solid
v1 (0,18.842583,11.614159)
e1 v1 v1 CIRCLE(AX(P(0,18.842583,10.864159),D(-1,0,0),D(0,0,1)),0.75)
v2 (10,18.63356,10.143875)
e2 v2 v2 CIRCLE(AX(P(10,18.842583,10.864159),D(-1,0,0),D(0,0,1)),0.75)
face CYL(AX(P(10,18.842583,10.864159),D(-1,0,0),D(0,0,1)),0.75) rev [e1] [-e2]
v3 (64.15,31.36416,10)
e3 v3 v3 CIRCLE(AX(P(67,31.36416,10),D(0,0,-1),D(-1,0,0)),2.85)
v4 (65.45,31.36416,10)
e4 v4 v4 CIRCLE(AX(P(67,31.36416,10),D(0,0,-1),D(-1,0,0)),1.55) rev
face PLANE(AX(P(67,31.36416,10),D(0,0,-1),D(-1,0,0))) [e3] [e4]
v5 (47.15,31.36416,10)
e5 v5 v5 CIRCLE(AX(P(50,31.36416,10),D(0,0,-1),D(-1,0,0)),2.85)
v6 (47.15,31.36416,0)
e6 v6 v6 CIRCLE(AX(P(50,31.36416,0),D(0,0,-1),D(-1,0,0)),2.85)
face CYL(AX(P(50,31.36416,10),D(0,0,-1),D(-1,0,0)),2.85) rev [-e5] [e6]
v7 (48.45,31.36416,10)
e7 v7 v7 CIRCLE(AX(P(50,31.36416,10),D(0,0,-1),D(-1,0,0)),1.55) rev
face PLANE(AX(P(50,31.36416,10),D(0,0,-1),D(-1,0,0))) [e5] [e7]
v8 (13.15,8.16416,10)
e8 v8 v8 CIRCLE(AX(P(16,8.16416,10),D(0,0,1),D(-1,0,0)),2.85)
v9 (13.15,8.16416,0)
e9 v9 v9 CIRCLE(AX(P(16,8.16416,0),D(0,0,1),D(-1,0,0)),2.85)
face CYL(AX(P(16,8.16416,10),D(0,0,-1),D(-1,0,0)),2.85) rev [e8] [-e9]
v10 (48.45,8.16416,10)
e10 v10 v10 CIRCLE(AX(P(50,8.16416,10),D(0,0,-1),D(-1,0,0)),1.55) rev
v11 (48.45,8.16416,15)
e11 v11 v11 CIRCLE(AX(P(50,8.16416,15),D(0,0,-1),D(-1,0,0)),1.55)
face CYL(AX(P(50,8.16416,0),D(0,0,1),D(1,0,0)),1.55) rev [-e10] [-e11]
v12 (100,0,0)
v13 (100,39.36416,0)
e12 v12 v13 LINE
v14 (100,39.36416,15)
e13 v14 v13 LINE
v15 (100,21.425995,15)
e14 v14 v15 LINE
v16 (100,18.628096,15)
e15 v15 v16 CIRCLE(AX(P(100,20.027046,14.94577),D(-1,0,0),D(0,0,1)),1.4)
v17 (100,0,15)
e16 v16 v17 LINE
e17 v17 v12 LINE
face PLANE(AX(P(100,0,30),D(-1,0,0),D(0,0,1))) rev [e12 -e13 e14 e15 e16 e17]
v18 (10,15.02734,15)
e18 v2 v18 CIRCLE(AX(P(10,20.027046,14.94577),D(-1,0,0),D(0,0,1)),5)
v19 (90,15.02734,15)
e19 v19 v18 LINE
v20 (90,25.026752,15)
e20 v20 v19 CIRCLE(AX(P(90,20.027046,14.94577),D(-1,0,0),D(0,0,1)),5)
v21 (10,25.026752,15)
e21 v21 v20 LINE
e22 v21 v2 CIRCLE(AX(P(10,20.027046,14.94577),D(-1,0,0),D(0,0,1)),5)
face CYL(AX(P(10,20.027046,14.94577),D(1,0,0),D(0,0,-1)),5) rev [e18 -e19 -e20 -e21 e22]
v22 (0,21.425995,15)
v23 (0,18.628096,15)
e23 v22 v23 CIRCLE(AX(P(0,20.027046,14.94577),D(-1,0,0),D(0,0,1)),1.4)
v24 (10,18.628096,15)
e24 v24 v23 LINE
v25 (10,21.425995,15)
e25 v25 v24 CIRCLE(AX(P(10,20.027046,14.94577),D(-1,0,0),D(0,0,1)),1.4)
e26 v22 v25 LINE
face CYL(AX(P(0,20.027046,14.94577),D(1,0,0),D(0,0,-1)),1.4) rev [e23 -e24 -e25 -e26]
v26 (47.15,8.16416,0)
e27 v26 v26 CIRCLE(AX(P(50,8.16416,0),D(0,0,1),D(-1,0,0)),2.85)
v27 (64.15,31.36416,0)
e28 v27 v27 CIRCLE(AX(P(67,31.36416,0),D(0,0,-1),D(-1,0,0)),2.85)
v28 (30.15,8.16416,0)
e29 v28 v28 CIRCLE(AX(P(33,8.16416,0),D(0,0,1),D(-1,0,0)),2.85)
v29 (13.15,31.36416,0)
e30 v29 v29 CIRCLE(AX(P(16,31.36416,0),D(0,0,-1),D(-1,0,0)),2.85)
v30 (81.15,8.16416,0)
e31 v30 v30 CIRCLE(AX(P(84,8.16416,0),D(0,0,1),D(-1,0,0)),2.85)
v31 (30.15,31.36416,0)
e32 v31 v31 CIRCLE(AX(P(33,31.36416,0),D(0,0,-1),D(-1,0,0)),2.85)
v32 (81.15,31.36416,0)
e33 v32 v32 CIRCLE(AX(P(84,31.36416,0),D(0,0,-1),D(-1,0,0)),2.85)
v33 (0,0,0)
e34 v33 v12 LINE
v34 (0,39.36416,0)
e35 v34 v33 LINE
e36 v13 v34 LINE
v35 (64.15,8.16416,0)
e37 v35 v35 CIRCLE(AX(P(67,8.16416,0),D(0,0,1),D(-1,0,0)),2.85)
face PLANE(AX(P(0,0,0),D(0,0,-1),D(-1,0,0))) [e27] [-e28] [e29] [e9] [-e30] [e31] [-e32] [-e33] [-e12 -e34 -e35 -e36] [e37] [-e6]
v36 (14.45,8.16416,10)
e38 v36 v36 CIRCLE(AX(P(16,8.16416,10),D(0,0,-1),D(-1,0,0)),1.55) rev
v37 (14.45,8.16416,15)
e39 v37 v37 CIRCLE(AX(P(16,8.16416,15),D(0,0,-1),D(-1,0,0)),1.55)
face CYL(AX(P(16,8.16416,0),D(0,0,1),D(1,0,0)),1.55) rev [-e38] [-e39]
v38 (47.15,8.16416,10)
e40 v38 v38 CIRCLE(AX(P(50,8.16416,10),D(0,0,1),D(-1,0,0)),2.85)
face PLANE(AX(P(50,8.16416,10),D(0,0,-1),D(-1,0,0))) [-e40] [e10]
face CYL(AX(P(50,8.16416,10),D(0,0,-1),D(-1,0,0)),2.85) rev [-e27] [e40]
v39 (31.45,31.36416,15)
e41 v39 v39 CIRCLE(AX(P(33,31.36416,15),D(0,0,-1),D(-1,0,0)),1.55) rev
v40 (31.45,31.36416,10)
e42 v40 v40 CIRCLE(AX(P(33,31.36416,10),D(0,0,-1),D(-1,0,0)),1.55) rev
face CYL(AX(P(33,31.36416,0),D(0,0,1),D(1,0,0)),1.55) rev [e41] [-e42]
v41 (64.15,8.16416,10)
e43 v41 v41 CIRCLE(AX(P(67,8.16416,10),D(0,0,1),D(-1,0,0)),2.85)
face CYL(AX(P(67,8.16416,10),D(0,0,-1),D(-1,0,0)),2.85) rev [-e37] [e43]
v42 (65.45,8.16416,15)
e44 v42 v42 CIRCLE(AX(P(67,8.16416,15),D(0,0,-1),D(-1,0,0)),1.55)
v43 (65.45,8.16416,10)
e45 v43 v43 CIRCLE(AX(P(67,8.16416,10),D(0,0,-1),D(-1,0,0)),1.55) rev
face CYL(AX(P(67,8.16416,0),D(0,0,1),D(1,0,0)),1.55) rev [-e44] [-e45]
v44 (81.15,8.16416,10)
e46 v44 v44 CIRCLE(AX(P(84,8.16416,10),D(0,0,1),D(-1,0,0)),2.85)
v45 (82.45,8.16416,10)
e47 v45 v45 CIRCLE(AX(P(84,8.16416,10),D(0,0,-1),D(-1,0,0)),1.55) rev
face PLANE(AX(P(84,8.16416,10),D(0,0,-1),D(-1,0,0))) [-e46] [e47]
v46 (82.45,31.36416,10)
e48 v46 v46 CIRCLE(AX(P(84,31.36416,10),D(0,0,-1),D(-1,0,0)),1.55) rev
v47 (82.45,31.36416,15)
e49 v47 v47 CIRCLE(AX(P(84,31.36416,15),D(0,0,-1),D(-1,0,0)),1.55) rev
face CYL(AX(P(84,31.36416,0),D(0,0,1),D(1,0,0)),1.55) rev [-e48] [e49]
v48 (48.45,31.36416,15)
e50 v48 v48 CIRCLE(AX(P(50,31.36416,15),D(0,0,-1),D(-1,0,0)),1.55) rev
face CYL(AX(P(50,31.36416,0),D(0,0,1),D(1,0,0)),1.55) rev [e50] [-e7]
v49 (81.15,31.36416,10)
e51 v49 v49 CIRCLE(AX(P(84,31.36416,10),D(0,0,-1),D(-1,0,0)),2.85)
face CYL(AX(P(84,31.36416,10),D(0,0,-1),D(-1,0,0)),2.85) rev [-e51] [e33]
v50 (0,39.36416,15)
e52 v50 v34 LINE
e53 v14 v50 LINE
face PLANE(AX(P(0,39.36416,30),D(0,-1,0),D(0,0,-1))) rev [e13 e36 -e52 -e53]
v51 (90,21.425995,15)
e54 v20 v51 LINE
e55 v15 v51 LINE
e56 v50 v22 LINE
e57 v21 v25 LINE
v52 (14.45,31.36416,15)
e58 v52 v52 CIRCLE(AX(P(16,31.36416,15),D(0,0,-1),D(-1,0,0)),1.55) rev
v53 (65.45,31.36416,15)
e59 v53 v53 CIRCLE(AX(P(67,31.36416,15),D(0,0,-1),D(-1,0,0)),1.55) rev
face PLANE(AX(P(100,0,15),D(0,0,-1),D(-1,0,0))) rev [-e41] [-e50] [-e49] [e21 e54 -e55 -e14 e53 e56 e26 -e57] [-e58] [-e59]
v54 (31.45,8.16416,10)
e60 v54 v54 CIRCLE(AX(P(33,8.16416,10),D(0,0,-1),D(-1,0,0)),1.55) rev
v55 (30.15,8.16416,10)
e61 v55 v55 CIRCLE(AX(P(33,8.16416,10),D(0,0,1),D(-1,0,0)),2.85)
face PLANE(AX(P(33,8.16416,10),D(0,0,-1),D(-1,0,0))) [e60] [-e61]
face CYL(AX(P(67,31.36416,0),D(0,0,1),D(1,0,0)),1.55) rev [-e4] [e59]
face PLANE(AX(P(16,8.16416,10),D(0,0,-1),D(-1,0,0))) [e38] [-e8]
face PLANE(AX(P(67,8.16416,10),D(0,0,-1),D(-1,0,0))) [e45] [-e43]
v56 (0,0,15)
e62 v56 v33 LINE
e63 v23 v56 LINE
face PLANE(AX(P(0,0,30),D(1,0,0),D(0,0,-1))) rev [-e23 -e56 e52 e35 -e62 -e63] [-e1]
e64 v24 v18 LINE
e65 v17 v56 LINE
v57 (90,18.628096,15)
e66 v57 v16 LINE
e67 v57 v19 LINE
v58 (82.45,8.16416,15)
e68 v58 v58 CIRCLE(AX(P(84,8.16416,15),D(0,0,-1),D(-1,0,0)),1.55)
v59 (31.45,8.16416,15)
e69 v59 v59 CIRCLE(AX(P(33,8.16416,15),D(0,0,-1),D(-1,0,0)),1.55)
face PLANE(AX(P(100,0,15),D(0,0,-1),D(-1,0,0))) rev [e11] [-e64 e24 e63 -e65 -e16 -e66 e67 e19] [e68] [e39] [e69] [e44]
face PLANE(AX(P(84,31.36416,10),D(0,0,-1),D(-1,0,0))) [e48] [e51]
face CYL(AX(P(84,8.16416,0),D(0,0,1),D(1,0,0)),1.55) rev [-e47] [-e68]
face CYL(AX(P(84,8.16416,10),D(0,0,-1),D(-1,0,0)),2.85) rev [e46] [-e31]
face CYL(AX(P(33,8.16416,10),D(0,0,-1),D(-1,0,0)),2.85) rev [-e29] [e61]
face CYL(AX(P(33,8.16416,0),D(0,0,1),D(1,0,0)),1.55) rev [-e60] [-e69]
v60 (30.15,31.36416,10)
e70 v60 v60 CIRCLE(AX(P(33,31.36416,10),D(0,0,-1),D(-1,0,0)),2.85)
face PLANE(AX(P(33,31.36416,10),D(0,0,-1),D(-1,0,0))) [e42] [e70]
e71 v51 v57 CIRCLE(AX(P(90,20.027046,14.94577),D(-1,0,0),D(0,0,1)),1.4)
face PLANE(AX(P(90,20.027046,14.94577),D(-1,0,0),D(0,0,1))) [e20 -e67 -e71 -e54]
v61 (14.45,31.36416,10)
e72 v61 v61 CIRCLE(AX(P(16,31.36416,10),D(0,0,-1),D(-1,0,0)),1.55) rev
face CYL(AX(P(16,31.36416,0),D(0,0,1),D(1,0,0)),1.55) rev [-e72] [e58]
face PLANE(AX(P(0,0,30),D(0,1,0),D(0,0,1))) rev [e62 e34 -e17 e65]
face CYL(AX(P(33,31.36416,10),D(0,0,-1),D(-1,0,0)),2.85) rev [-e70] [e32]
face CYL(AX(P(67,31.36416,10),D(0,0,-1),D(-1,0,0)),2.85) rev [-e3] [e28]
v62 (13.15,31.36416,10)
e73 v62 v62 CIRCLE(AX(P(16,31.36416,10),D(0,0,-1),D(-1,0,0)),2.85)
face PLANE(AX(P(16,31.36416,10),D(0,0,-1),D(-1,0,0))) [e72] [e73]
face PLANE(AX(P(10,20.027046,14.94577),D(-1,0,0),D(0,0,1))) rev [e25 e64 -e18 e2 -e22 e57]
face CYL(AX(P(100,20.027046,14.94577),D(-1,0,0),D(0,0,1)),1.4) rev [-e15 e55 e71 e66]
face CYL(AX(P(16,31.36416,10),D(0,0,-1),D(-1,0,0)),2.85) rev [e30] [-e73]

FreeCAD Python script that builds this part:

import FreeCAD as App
import Part
import Sketcher
Q = App.Units.Quantity


def edges_at(feature, points):
    """Names of the edges that pass closest to the given points."""
    edges = feature.Shape.Edges
    near = lambda p: min(range(len(edges)), key=lambda i: edges[i].distToShape(Part.Vertex(*p))[0])
    return sorted({f"Edge{near(p) + 1}" for p in points})

doc = App.newDocument("Part")
params = doc.addObject("Spreadsheet::Sheet", "Params")
for row, (alias, value) in enumerate([
    ("sketch1_width", "100 mm"),
    ("pad1_length", "30 mm"),
    ("sketch2_diameter", "10 mm"),
    ("pocket1_length", "40 mm"),
    ("pocket1_length2", "40 mm"),
    ("sketch3_diameter", "2.8 mm"),
    ("sketch4_diameter", "3.1 mm"),
    ("sketch6_diameter", "4.2 mm"),
    ("pocket5_length", "6 mm"),
    ("sketch7_diameter", "1.5 mm"),
    ("pocket6_length", "10 mm"),
    ("fillet_radius", "1 mm"),
    ("sketch8_diameter", "5.7 mm"),
    ("pocket7_length", "10 mm"),
    ("sketch9_width", "5.7 mm"),
    ("pocket8_length", "2.7 mm"),
    ("linearpattern_pitch", "17 mm"),
    ("sketch10_diameter", "5.7 mm"),
    ("pocket9_length", "10 mm"),
    ("sketch11_diameter", "5.7 mm"),
    ("pocket10_length", "10 mm"),
    ("sketch12_diameter", "5.7 mm"),
    ("pocket11_length", "10 mm"),
    ("sketch13_diameter", "5.7 mm"),
    ("pocket12_length", "10 mm"),
    ("sketch14_width", "5.7 mm"),
    ("pocket13_length", "2.7 mm"),
    ("sketch15_width", "5.7 mm"),
    ("pocket14_length", "2.7 mm"),
    ("sketch16_width", "5.7 mm"),
    ("pocket15_length", "2.7 mm"),
    ("sketch17_width", "5.7 mm"),
    ("pocket16_length", "2.7 mm"),
    ("sketch18_height", "15 mm"),
], start=1):
    params.set(f"A{row}", alias)
    params.set(f"B{row}", "=" + value)
    params.setAlias(f"B{row}", alias)

body = doc.addObject("PartDesign::Body", "Body")

# Sketch on XY plane
sketch1 = body.newObject("Sketcher::SketchObject", "Sketch")
sketch1.AttachmentSupport = (doc.getObject("XY_Plane"), [""])
sketch1.MapMode = "FlatFace"
sketch1.addGeometry(Part.LineSegment(App.Vector(0, 39, 0), App.Vector(0, 0, 0)), False)
sketch1.addGeometry(Part.LineSegment(App.Vector(0, 0, 0), App.Vector(100, 0, 0)), False)
sketch1.addGeometry(Part.LineSegment(App.Vector(100, 0, 0), App.Vector(100, 39, 0)), False)
sketch1.addGeometry(Part.LineSegment(App.Vector(100, 39, 0), App.Vector(0, 39, 0)), False)
sketch1.addConstraint(Sketcher.Constraint("Coincident", 0, 2, 1, 1))
sketch1.addConstraint(Sketcher.Constraint("Coincident", 1, 2, 2, 1))
sketch1.addConstraint(Sketcher.Constraint("Coincident", 2, 2, 3, 1))
sketch1.addConstraint(Sketcher.Constraint("Coincident", 3, 2, 0, 1))
sketch1.addConstraint(Sketcher.Constraint("Vertical", 0))
sketch1.addConstraint(Sketcher.Constraint("Horizontal", 1))
sketch1.addConstraint(Sketcher.Constraint("Vertical", 2))
sketch1.addConstraint(Sketcher.Constraint("Horizontal", 3))
sketch1.addConstraint(Sketcher.Constraint("Coincident", 0, 2, -1, 1))
sketch1.addConstraint(Sketcher.Constraint("DistanceX", 1, 1, 1, 2, Q("100 mm")))
sketch1.addConstraint(Sketcher.Constraint("DistanceY", 0, 2, 0, 1, Q("39.36416 mm")))
sketch1.setExpression("Constraints[9]", "Params.sketch1_width")
pad1 = body.newObject("PartDesign::Pad", "Pad")
pad1.Profile = sketch1
pad1.setExpression("Length", "Params.pad1_length")

# Sketch on YZ plane
sketch2 = body.newObject("Sketcher::SketchObject", "Sketch001")
sketch2.AttachmentSupport = (doc.getObject("YZ_Plane"), [""])
sketch2.MapMode = "FlatFace"
sketch2.AttachmentOffset = App.Placement(App.Vector(0, 0, 50), App.Rotation())
sketch2.addGeometry(Part.Circle(App.Vector(20, 15, 0), App.Vector(0, 0, 1), 5), False)
sketch2.addConstraint(Sketcher.Constraint("Diameter", 0, Q("10 mm")))
sketch2.addConstraint(Sketcher.Constraint("DistanceY", -1, 1, 0, 3, Q("14.94577 mm")))
sketch2.addConstraint(Sketcher.Constraint("DistanceX", -1, 1, 0, 3, Q("20.027046 mm")))
sketch2.setExpression("Constraints[0]", "Params.sketch2_diameter")
pocket1 = body.newObject("PartDesign::Pocket", "Pocket")
pocket1.Profile = sketch2
pocket1.Type = "TwoLengths"
pocket1.setExpression("Length", "Params.pocket1_length")
pocket1.setExpression("Length2", "Params.pocket1_length2")

# Sketch on YZ plane
sketch3 = body.newObject("Sketcher::SketchObject", "Sketch002")
sketch3.AttachmentSupport = (doc.getObject("YZ_Plane"), [""])
sketch3.MapMode = "FlatFace"
sketch3.AttachmentOffset = App.Placement(App.Vector(0, 0, 90), App.Rotation())
sketch3.addGeometry(Part.Circle(App.Vector(20, 14.9, 0), App.Vector(0, 0, 1), 1.4), False)
sketch3.addConstraint(Sketcher.Constraint("Diameter", 0, Q("2.8 mm")))
sketch3.addConstraint(Sketcher.Constraint("DistanceY", -1, 1, 0, 3, Q("14.94577 mm")))
sketch3.addConstraint(Sketcher.Constraint("DistanceX", -1, 1, 0, 3, Q("20.027046 mm")))
sketch3.setExpression("Constraints[0]", "Params.sketch3_diameter")
pocket2 = body.newObject("PartDesign::Pocket", "Pocket001")
pocket2.Profile = sketch3
pocket2.Type = "ThroughAll"
pocket2.Reversed = True
doc.recompute()

datumplane = body.newObject("PartDesign::Plane", "DatumPlane")
datumplane.AttachmentSupport = (doc.getObject("YZ_Plane"), [""])
datumplane.MapMode = "FlatFace"
datumplane.AttachmentOffset = App.Placement(App.Vector(0, 0, 50), App.Rotation())
mirrored = body.newObject("PartDesign::Mirrored", "Mirrored")
mirrored.Originals = [pocket2]
mirrored.MirrorPlane = (datumplane, [""])
body.Tip = mirrored

# Sketch on XY plane
sketch4 = body.newObject("Sketcher::SketchObject", "Sketch003")
sketch4.AttachmentSupport = (doc.getObject("XY_Plane"), [""])
sketch4.MapMode = "FlatFace"
sketch4.AttachmentOffset = App.Placement(App.Vector(0, 0, 30), App.Rotation())
sketch4.addGeometry(Part.Circle(App.Vector(16, 31.4, 0), App.Vector(0, 0, 1), 1.6), False)
sketch4.addGeometry(Part.Circle(App.Vector(33, 31.4, 0), App.Vector(0, 0, 1), 1.6), False)
sketch4.addGeometry(Part.Circle(App.Vector(50, 31.4, 0), App.Vector(0, 0, 1), 1.6), False)
sketch4.addGeometry(Part.Circle(App.Vector(67, 31.4, 0), App.Vector(0, 0, 1), 1.6), False)
sketch4.addGeometry(Part.Circle(App.Vector(84, 31.4, 0), App.Vector(0, 0, 1), 1.6), False)
sketch4.addConstraint(Sketcher.Constraint("Equal", 0, 1))
sketch4.addConstraint(Sketcher.Constraint("Equal", 1, 2))
sketch4.addConstraint(Sketcher.Constraint("Equal", 2, 3))
sketch4.addConstraint(Sketcher.Constraint("Equal", 3, 4))
sketch4.addConstraint(Sketcher.Constraint("Horizontal", 0, 3, 1, 3))
sketch4.addConstraint(Sketcher.Constraint("Horizontal", 1, 3, 2, 3))
sketch4.addConstraint(Sketcher.Constraint("Horizontal", 2, 3, 3, 3))
sketch4.addConstraint(Sketcher.Constraint("Horizontal", 3, 3, 4, 3))
sketch4.addConstraint(Sketcher.Constraint("Diameter", 0, Q("3.1 mm")))
sketch4.addConstraint(Sketcher.Constraint("DistanceX", -1, 1, 0, 3, Q("16 mm")))
sketch4.addConstraint(Sketcher.Constraint("DistanceX", -1, 1, 1, 3, Q("33 mm")))
sketch4.addConstraint(Sketcher.Constraint("DistanceX", -1, 1, 2, 3, Q("50 mm")))
sketch4.addConstraint(Sketcher.Constraint("DistanceX", -1, 1, 3, 3, Q("67 mm")))
sketch4.addConstraint(Sketcher.Constraint("DistanceX", -1, 1, 4, 3, Q("84 mm")))
sketch4.addConstraint(Sketcher.Constraint("DistanceY", -1, 1, 0, 3, Q("31.36416 mm")))
sketch4.setExpression("Constraints[8]", "Params.sketch4_diameter")
pocket3 = body.newObject("PartDesign::Pocket", "Pocket002")
pocket3.Profile = sketch4
pocket3.Type = "ThroughAll"

# Sketch on YZ plane
sketch5 = body.newObject("Sketcher::SketchObject", "Sketch004")
sketch5.AttachmentSupport = (doc.getObject("YZ_Plane"), [""])
sketch5.MapMode = "FlatFace"
sketch5.AttachmentOffset = App.Placement(App.Vector(0, 0, 100), App.Rotation())
sketch5.addGeometry(Part.Circle(App.Vector(18.6, 18.9, 0), App.Vector(0, 0, 1), 0.7), False)
sketch5.addConstraint(Sketcher.Constraint("Diameter", 0, Q("1.473731 mm")))
sketch5.addConstraint(Sketcher.Constraint("DistanceX", -1, 1, 0, 3, Q("18.63356 mm")))
sketch5.addConstraint(Sketcher.Constraint("DistanceY", -1, 1, 0, 3, Q("18.92459 mm")))
pocket4 = body.newObject("PartDesign::Pocket", "Pocket003")
pocket4.Profile = sketch5
pocket4.Type = "ThroughAll"

# Sketch on YZ plane
sketch6 = body.newObject("Sketcher::SketchObject", "Sketch005")
sketch6.AttachmentSupport = (doc.getObject("YZ_Plane"), [""])
sketch6.MapMode = "FlatFace"
sketch6.AttachmentOffset = App.Placement(App.Vector(0, 0, 100), App.Rotation())
sketch6.addGeometry(Part.Circle(App.Vector(18.6, 18.9, 0), App.Vector(0, 0, 1), 2.1), False)
sketch6.addConstraint(Sketcher.Constraint("Diameter", 0, Q("4.2 mm")))
sketch6.addConstraint(Sketcher.Constraint("DistanceX", -1, 1, 0, 3, Q("18.63356 mm")))
sketch6.addConstraint(Sketcher.Constraint("DistanceY", -1, 1, 0, 3, Q("18.92459 mm")))
sketch6.setExpression("Constraints[0]", "Params.sketch6_diameter")
pocket5 = body.newObject("PartDesign::Pocket", "Pocket004")
pocket5.Profile = sketch6
pocket5.setExpression("Length", "Params.pocket5_length")

# Sketch on YZ plane
sketch7 = body.newObject("Sketcher::SketchObject", "Sketch006")
sketch7.AttachmentSupport = (doc.getObject("YZ_Plane"), [""])
sketch7.MapMode = "FlatFace"
sketch7.addGeometry(Part.Circle(App.Vector(18.8, 10.9, 0), App.Vector(0, 0, 1), 0.8), False)
sketch7.addConstraint(Sketcher.Constraint("Diameter", 0, Q("1.5 mm")))
sketch7.addConstraint(Sketcher.Constraint("DistanceY", -1, 1, 0, 3, Q("10.864159 mm")))
sketch7.addConstraint(Sketcher.Constraint("DistanceX", -1, 1, 0, 3, Q("18.842583 mm")))
sketch7.setExpression("Constraints[0]", "Params.sketch7_diameter")
pocket6 = body.newObject("PartDesign::Pocket", "Pocket005")
pocket6.Profile = sketch7
pocket6.setExpression("Length", "Params.pocket6_length")
pocket6.Reversed = True
doc.recompute()

fillet = body.newObject("PartDesign::Fillet", "Fillet")
fillet.Base = (pocket6, edges_at(pocket6, [(94, 18.634, 19.661)]))
fillet.setExpression("Radius", "Params.fillet_radius")

# Sketch on XY plane
sketch8 = body.newObject("Sketcher::SketchObject", "Sketch007")
sketch8.AttachmentSupport = (doc.getObject("XY_Plane"), [""])
sketch8.MapMode = "FlatFace"
sketch8.addGeometry(Part.Circle(App.Vector(84, 31.4, 0), App.Vector(0, 0, 1), 2.9), False)
sketch8.addConstraint(Sketcher.Constraint("Diameter", 0, Q("5.7 mm")))
sketch8.addConstraint(Sketcher.Constraint("DistanceX", -1, 1, 0, 3, Q("84 mm")))
sketch8.addConstraint(Sketcher.Constraint("DistanceY", -1, 1, 0, 3, Q("31.36416 mm")))
sketch8.setExpression("Constraints[0]", "Params.sketch8_diameter")
pocket7 = body.newObject("PartDesign::Pocket", "Pocket006")
pocket7.Profile = sketch8
pocket7.setExpression("Length", "Params.pocket7_length")
pocket7.Reversed = True

# Sketch on XY plane
sketch9 = body.newObject("Sketcher::SketchObject", "Sketch008")
sketch9.AttachmentSupport = (doc.getObject("XY_Plane"), [""])
sketch9.MapMode = "FlatFace"
sketch9.AttachmentOffset = App.Placement(App.Vector(0, 0, 25), App.Rotation())
sketch9.addGeometry(Part.LineSegment(App.Vector(81.2, 39.4, 0), App.Vector(81.2, 29.7, 0)), False)
sketch9.addGeometry(Part.LineSegment(App.Vector(81.2, 29.7, 0), App.Vector(84, 28.1, 0)), False)
sketch9.addGeometry(Part.LineSegment(App.Vector(84, 28.1, 0), App.Vector(86.8, 29.7, 0)), False)
sketch9.addGeometry(Part.LineSegment(App.Vector(86.8, 29.7, 0), App.Vector(86.8, 39.4, 0)), False)
sketch9.addGeometry(Part.LineSegment(App.Vector(86.8, 39.4, 0), App.Vector(81.2, 39.4, 0)), False)
sketch9.addConstraint(Sketcher.Constraint("Coincident", 0, 2, 1, 1))
sketch9.addConstraint(Sketcher.Constraint("Coincident", 1, 2, 2, 1))
sketch9.addConstraint(Sketcher.Constraint("Coincident", 2, 2, 3, 1))
sketch9.addConstraint(Sketcher.Constraint("Coincident", 3, 2, 4, 1))
sketch9.addConstraint(Sketcher.Constraint("Coincident", 4, 2, 0, 1))
sketch9.addConstraint(Sketcher.Constraint("Vertical", 0))
sketch9.addConstraint(Sketcher.Constraint("Vertical", 3))
sketch9.addConstraint(Sketcher.Constraint("Horizontal", 4))
sketch9.addConstraint(Sketcher.Constraint("Horizontal", 0, 2, 2, 2))
sketch9.addConstraint(Sketcher.Constraint("Equal", 1, 2))
sketch9.addConstraint(Sketcher.Constraint("Angle", 1, Q("-30 deg")))
sketch9.addConstraint(Sketcher.Constraint("DistanceX", 4, 2, 4, 1, Q("5.7 mm")))
sketch9.addConstraint(Sketcher.Constraint("DistanceX", -1, 1, 1, 2, Q("84 mm")))
sketch9.addConstraint(Sketcher.Constraint("DistanceY", 0, 2, 0, 1, Q("9.645448 mm")))
sketch9.addConstraint(Sketcher.Constraint("DistanceY", -1, 1, 0, 2, Q("29.718712 mm")))
sketch9.setExpression("Constraints[11]", "Params.sketch9_width")
pocket8 = body.newObject("PartDesign::Pocket", "Pocket007")
pocket8.Profile = sketch9
pocket8.setExpression("Length", "Params.pocket8_length")
doc.recompute()

linearpattern = body.newObject("PartDesign::LinearPattern", "LinearPattern")
linearpattern.Originals = [pocket7, pocket8]
linearpattern.Direction = (doc.getObject("X_Axis"), [""])
linearpattern.Mode = "offset"
linearpattern.setExpression("Offset", "Params.linearpattern_pitch")
linearpattern.Occurrences = 5
linearpattern.Reversed = True
body.Tip = linearpattern
doc.recompute()

datumplane2 = body.newObject("PartDesign::Plane", "DatumPlane001")
datumplane2.AttachmentSupport = (doc.getObject("XZ_Plane"), [""])
datumplane2.MapMode = "FlatFace"
datumplane2.AttachmentOffset = App.Placement(App.Vector(0, 0, -19.76416), App.Rotation())
mirrored2 = body.newObject("PartDesign::Mirrored", "Mirrored001")
mirrored2.Originals = [pocket7, pocket8]
mirrored2.MirrorPlane = (datumplane2, [""])
body.Tip = mirrored2

# Sketch on XY plane
sketch10 = body.newObject("Sketcher::SketchObject", "Sketch009")
sketch10.AttachmentSupport = (doc.getObject("XY_Plane"), [""])
sketch10.MapMode = "FlatFace"
sketch10.addGeometry(Part.Circle(App.Vector(67, 8.2, 0), App.Vector(0, 0, 1), 2.9), False)
sketch10.addConstraint(Sketcher.Constraint("Diameter", 0, Q("5.7 mm")))
sketch10.addConstraint(Sketcher.Constraint("DistanceX", -1, 1, 0, 3, Q("67 mm")))
sketch10.addConstraint(Sketcher.Constraint("DistanceY", -1, 1, 0, 3, Q("8.16416 mm")))
sketch10.setExpression("Constraints[0]", "Params.sketch10_diameter")
pocket9 = body.newObject("PartDesign::Pocket", "Pocket008")
pocket9.Profile = sketch10
pocket9.setExpression("Length", "Params.pocket9_length")
pocket9.Reversed = True

# Sketch on XY plane
sketch11 = body.newObject("Sketcher::SketchObject", "Sketch010")
sketch11.AttachmentSupport = (doc.getObject("XY_Plane"), [""])
sketch11.MapMode = "FlatFace"
sketch11.addGeometry(Part.Circle(App.Vector(50, 8.2, 0), App.Vector(0, 0, 1), 2.9), False)
sketch11.addConstraint(Sketcher.Constraint("Diameter", 0, Q("5.7 mm")))
sketch11.addConstraint(Sketcher.Constraint("DistanceX", -1, 1, 0, 3, Q("50 mm")))
sketch11.addConstraint(Sketcher.Constraint("DistanceY", -1, 1, 0, 3, Q("8.16416 mm")))
sketch11.setExpression("Constraints[0]", "Params.sketch11_diameter")
pocket10 = body.newObject("PartDesign::Pocket", "Pocket009")
pocket10.Profile = sketch11
pocket10.setExpression("Length", "Params.pocket10_length")
pocket10.Reversed = True

# Sketch on XY plane
sketch12 = body.newObject("Sketcher::SketchObject", "Sketch011")
sketch12.AttachmentSupport = (doc.getObject("XY_Plane"), [""])
sketch12.MapMode = "FlatFace"
sketch12.addGeometry(Part.Circle(App.Vector(33, 8.2, 0), App.Vector(0, 0, 1), 2.9), False)
sketch12.addConstraint(Sketcher.Constraint("Diameter", 0, Q("5.7 mm")))
sketch12.addConstraint(Sketcher.Constraint("DistanceX", -1, 1, 0, 3, Q("33 mm")))
sketch12.addConstraint(Sketcher.Constraint("DistanceY", -1, 1, 0, 3, Q("8.16416 mm")))
sketch12.setExpression("Constraints[0]", "Params.sketch12_diameter")
pocket11 = body.newObject("PartDesign::Pocket", "Pocket010")
pocket11.Profile = sketch12
pocket11.setExpression("Length", "Params.pocket11_length")
pocket11.Reversed = True

# Sketch on XY plane
sketch13 = body.newObject("Sketcher::SketchObject", "Sketch012")
sketch13.AttachmentSupport = (doc.getObject("XY_Plane"), [""])
sketch13.MapMode = "FlatFace"
sketch13.addGeometry(Part.Circle(App.Vector(16, 8.2, 0), App.Vector(0, 0, 1), 2.9), False)
sketch13.addConstraint(Sketcher.Constraint("Diameter", 0, Q("5.7 mm")))
sketch13.addConstraint(Sketcher.Constraint("DistanceX", -1, 1, 0, 3, Q("16 mm")))
sketch13.addConstraint(Sketcher.Constraint("DistanceY", -1, 1, 0, 3, Q("8.16416 mm")))
sketch13.setExpression("Constraints[0]", "Params.sketch13_diameter")
pocket12 = body.newObject("PartDesign::Pocket", "Pocket011")
pocket12.Profile = sketch13
pocket12.setExpression("Length", "Params.pocket12_length")
pocket12.Reversed = True

# Sketch on XY plane
sketch14 = body.newObject("Sketcher::SketchObject", "Sketch013")
sketch14.AttachmentSupport = (doc.getObject("XY_Plane"), [""])
sketch14.MapMode = "FlatFace"
sketch14.AttachmentOffset = App.Placement(App.Vector(0, 0, 25), App.Rotation())
sketch14.addGeometry(Part.LineSegment(App.Vector(64.2, 0.2, 0), App.Vector(69.8, 0.2, 0)), False)
sketch14.addGeometry(Part.LineSegment(App.Vector(69.8, 0.2, 0), App.Vector(69.8, 9.8, 0)), False)
sketch14.addGeometry(Part.LineSegment(App.Vector(69.8, 9.8, 0), App.Vector(67, 11.5, 0)), False)
sketch14.addGeometry(Part.LineSegment(App.Vector(67, 11.5, 0), App.Vector(64.2, 9.8, 0)), False)
sketch14.addGeometry(Part.LineSegment(App.Vector(64.2, 9.8, 0), App.Vector(64.2, 0.2, 0)), False)
sketch14.addConstraint(Sketcher.Constraint("Coincident", 0, 2, 1, 1))
sketch14.addConstraint(Sketcher.Constraint("Coincident", 1, 2, 2, 1))
sketch14.addConstraint(Sketcher.Constraint("Coincident", 2, 2, 3, 1))
sketch14.addConstraint(Sketcher.Constraint("Coincident", 3, 2, 4, 1))
sketch14.addConstraint(Sketcher.Constraint("Coincident", 4, 2, 0, 1))
sketch14.addConstraint(Sketcher.Constraint("Horizontal", 0))
sketch14.addConstraint(Sketcher.Constraint("Vertical", 1))
sketch14.addConstraint(Sketcher.Constraint("Vertical", 4))
sketch14.addConstraint(Sketcher.Constraint("Horizontal", 1, 2, 3, 2))
sketch14.addConstraint(Sketcher.Constraint("Equal", 2, 3))
sketch14.addConstraint(Sketcher.Constraint("Angle", 2, Q("150 deg")))
sketch14.addConstraint(Sketcher.Constraint("DistanceX", 0, 1, 0, 2, Q("5.7 mm")))
sketch14.addConstraint(Sketcher.Constraint("DistanceX", -1, 1, 2, 2, Q("67 mm")))
sketch14.addConstraint(Sketcher.Constraint("DistanceY", 1, 1, 1, 2, Q("9.645448 mm")))
sketch14.addConstraint(Sketcher.Constraint("DistanceY", -1, 1, 0, 2, Q("0.16416 mm")))
sketch14.setExpression("Constraints[11]", "Params.sketch14_width")
pocket13 = body.newObject("PartDesign::Pocket", "Pocket012")
pocket13.Profile = sketch14
pocket13.setExpression("Length", "Params.pocket13_length")

# Sketch on XY plane
sketch15 = body.newObject("Sketcher::SketchObject", "Sketch014")
sketch15.AttachmentSupport = (doc.getObject("XY_Plane"), [""])
sketch15.MapMode = "FlatFace"
sketch15.AttachmentOffset = App.Placement(App.Vector(0, 0, 25), App.Rotation())
sketch15.addGeometry(Part.LineSegment(App.Vector(47.1, 0.2, 0), App.Vector(52.9, 0.2, 0)), False)
sketch15.addGeometry(Part.LineSegment(App.Vector(52.9, 0.2, 0), App.Vector(52.9, 9.8, 0)), False)
sketch15.addGeometry(Part.LineSegment(App.Vector(52.9, 9.8, 0), App.Vector(50, 11.5, 0)), False)
sketch15.addGeometry(Part.LineSegment(App.Vector(50, 11.5, 0), App.Vector(47.1, 9.8, 0)), False)
sketch15.addGeometry(Part.LineSegment(App.Vector(47.1, 9.8, 0), App.Vector(47.1, 0.2, 0)), False)
sketch15.addConstraint(Sketcher.Constraint("Coincident", 0, 2, 1, 1))
sketch15.addConstraint(Sketcher.Constraint("Coincident", 1, 2, 2, 1))
sketch15.addConstraint(Sketcher.Constraint("Coincident", 2, 2, 3, 1))
sketch15.addConstraint(Sketcher.Constraint("Coincident", 3, 2, 4, 1))
sketch15.addConstraint(Sketcher.Constraint("Coincident", 4, 2, 0, 1))
sketch15.addConstraint(Sketcher.Constraint("Horizontal", 0))
sketch15.addConstraint(Sketcher.Constraint("Vertical", 1))
sketch15.addConstraint(Sketcher.Constraint("Vertical", 4))
sketch15.addConstraint(Sketcher.Constraint("Horizontal", 1, 2, 3, 2))
sketch15.addConstraint(Sketcher.Constraint("Equal", 2, 3))
sketch15.addConstraint(Sketcher.Constraint("Angle", 2, Q("150 deg")))
sketch15.addConstraint(Sketcher.Constraint("DistanceX", 0, 1, 0, 2, Q("5.7 mm")))
sketch15.addConstraint(Sketcher.Constraint("DistanceX", -1, 1, 2, 2, Q("50 mm")))
sketch15.addConstraint(Sketcher.Constraint("DistanceY", 1, 1, 1, 2, Q("9.645448 mm")))
sketch15.addConstraint(Sketcher.Constraint("DistanceY", -1, 1, 0, 2, Q("0.16416 mm")))
sketch15.setExpression("Constraints[11]", "Params.sketch15_width")
pocket14 = body.newObject("PartDesign::Pocket", "Pocket013")
pocket14.Profile = sketch15
pocket14.setExpression("Length", "Params.pocket14_length")

# Sketch on XY plane
sketch16 = body.newObject("Sketcher::SketchObject", "Sketch015")
sketch16.AttachmentSupport = (doc.getObject("XY_Plane"), [""])
sketch16.MapMode = "FlatFace"
sketch16.AttachmentOffset = App.Placement(App.Vector(0, 0, 25), App.Rotation())
sketch16.addGeometry(Part.LineSegment(App.Vector(30.1, 0.2, 0), App.Vector(35.9, 0.2, 0)), False)
sketch16.addGeometry(Part.LineSegment(App.Vector(35.9, 0.2, 0), App.Vector(35.9, 9.8, 0)), False)
sketch16.addGeometry(Part.LineSegment(App.Vector(35.9, 9.8, 0), App.Vector(33, 11.5, 0)), False)
sketch16.addGeometry(Part.LineSegment(App.Vector(33, 11.5, 0), App.Vector(30.1, 9.8, 0)), False)
sketch16.addGeometry(Part.LineSegment(App.Vector(30.1, 9.8, 0), App.Vector(30.1, 0.2, 0)), False)
sketch16.addConstraint(Sketcher.Constraint("Coincident", 0, 2, 1, 1))
sketch16.addConstraint(Sketcher.Constraint("Coincident", 1, 2, 2, 1))
sketch16.addConstraint(Sketcher.Constraint("Coincident", 2, 2, 3, 1))
sketch16.addConstraint(Sketcher.Constraint("Coincident", 3, 2, 4, 1))
sketch16.addConstraint(Sketcher.Constraint("Coincident", 4, 2, 0, 1))
sketch16.addConstraint(Sketcher.Constraint("Horizontal", 0))
sketch16.addConstraint(Sketcher.Constraint("Vertical", 1))
sketch16.addConstraint(Sketcher.Constraint("Vertical", 4))
sketch16.addConstraint(Sketcher.Constraint("Horizontal", 1, 2, 3, 2))
sketch16.addConstraint(Sketcher.Constraint("Equal", 2, 3))
sketch16.addConstraint(Sketcher.Constraint("Angle", 2, Q("150 deg")))
sketch16.addConstraint(Sketcher.Constraint("DistanceX", 0, 1, 0, 2, Q("5.7 mm")))
sketch16.addConstraint(Sketcher.Constraint("DistanceX", -1, 1, 2, 2, Q("33 mm")))
sketch16.addConstraint(Sketcher.Constraint("DistanceY", 1, 1, 1, 2, Q("9.645448 mm")))
sketch16.addConstraint(Sketcher.Constraint("DistanceY", -1, 1, 0, 2, Q("0.16416 mm")))
sketch16.setExpression("Constraints[11]", "Params.sketch16_width")
pocket15 = body.newObject("PartDesign::Pocket", "Pocket014")
pocket15.Profile = sketch16
pocket15.setExpression("Length", "Params.pocket15_length")

# Sketch on XY plane
sketch17 = body.newObject("Sketcher::SketchObject", "Sketch016")
sketch17.AttachmentSupport = (doc.getObject("XY_Plane"), [""])
sketch17.MapMode = "FlatFace"
sketch17.AttachmentOffset = App.Placement(App.Vector(0, 0, 25), App.Rotation())
sketch17.addGeometry(Part.LineSegment(App.Vector(13.2, 0.2, 0), App.Vector(18.9, 0.2, 0)), False)
sketch17.addGeometry(Part.LineSegment(App.Vector(18.9, 0.2, 0), App.Vector(18.9, 9.8, 0)), False)
sketch17.addGeometry(Part.LineSegment(App.Vector(18.9, 9.8, 0), App.Vector(16, 11.5, 0)), False)
sketch17.addGeometry(Part.LineSegment(App.Vector(16, 11.5, 0), App.Vector(13.2, 9.8, 0)), False)
sketch17.addGeometry(Part.LineSegment(App.Vector(13.2, 9.8, 0), App.Vector(13.2, 0.2, 0)), False)
sketch17.addConstraint(Sketcher.Constraint("Coincident", 0, 2, 1, 1))
sketch17.addConstraint(Sketcher.Constraint("Coincident", 1, 2, 2, 1))
sketch17.addConstraint(Sketcher.Constraint("Coincident", 2, 2, 3, 1))
sketch17.addConstraint(Sketcher.Constraint("Coincident", 3, 2, 4, 1))
sketch17.addConstraint(Sketcher.Constraint("Coincident", 4, 2, 0, 1))
sketch17.addConstraint(Sketcher.Constraint("Horizontal", 0))
sketch17.addConstraint(Sketcher.Constraint("Vertical", 1))
sketch17.addConstraint(Sketcher.Constraint("Vertical", 4))
sketch17.addConstraint(Sketcher.Constraint("Horizontal", 1, 2, 3, 2))
sketch17.addConstraint(Sketcher.Constraint("Equal", 2, 3))
sketch17.addConstraint(Sketcher.Constraint("Angle", 2, Q("150 deg")))
sketch17.addConstraint(Sketcher.Constraint("DistanceX", 0, 1, 0, 2, Q("5.7 mm")))
sketch17.addConstraint(Sketcher.Constraint("DistanceX", -1, 1, 2, 2, Q("16 mm")))
sketch17.addConstraint(Sketcher.Constraint("DistanceY", 1, 1, 1, 2, Q("9.645448 mm")))
sketch17.addConstraint(Sketcher.Constraint("DistanceY", -1, 1, 0, 2, Q("0.16416 mm")))
sketch17.setExpression("Constraints[11]", "Params.sketch17_width")
pocket16 = body.newObject("PartDesign::Pocket", "Pocket015")
pocket16.Profile = sketch17
pocket16.setExpression("Length", "Params.pocket16_length")
doc.recompute()

datumplane3 = body.newObject("PartDesign::Plane", "DatumPlane002")
datumplane3.AttachmentSupport = (doc.getObject("XZ_Plane"), [""])
datumplane3.MapMode = "FlatFace"
datumplane3.AttachmentOffset = App.Placement(App.Vector(0, 0, -19.76416), App.Rotation())
mirrored3 = body.newObject("PartDesign::Mirrored", "Mirrored002")
mirrored3.Originals = [pocket3]
mirrored3.MirrorPlane = (datumplane3, [""])
body.Tip = mirrored3

# Sketch on YZ plane
sketch18 = body.newObject("Sketcher::SketchObject", "Sketch017")
sketch18.AttachmentSupport = (doc.getObject("YZ_Plane"), [""])
sketch18.MapMode = "FlatFace"
sketch18.addGeometry(Part.LineSegment(App.Vector(39, 15, 0), App.Vector(0, 15, 0)), False)
sketch18.addGeometry(Part.LineSegment(App.Vector(0, 15, 0), App.Vector(0, 30, 0)), False)
sketch18.addGeometry(Part.LineSegment(App.Vector(0, 30, 0), App.Vector(39, 30, 0)), False)
sketch18.addGeometry(Part.LineSegment(App.Vector(39, 30, 0), App.Vector(39, 15, 0)), False)
sketch18.addConstraint(Sketcher.Constraint("Coincident", 0, 2, 1, 1))
sketch18.addConstraint(Sketcher.Constraint("Coincident", 1, 2, 2, 1))
sketch18.addConstraint(Sketcher.Constraint("Coincident", 2, 2, 3, 1))
sketch18.addConstraint(Sketcher.Constraint("Coincident", 3, 2, 0, 1))
sketch18.addConstraint(Sketcher.Constraint("Horizontal", 0))
sketch18.addConstraint(Sketcher.Constraint("Vertical", 1))
sketch18.addConstraint(Sketcher.Constraint("Horizontal", 2))
sketch18.addConstraint(Sketcher.Constraint("Vertical", 3))
sketch18.addConstraint(Sketcher.Constraint("PointOnObject", 0, 2, -2))
sketch18.addConstraint(Sketcher.Constraint("DistanceY", 1, 1, 1, 2, Q("15 mm")))
sketch18.addConstraint(Sketcher.Constraint("DistanceY", -1, 1, 0, 2, Q("15 mm")))
sketch18.addConstraint(Sketcher.Constraint("DistanceX", 0, 2, 0, 1, Q("39.36416 mm")))
sketch18.setExpression("Constraints[9]", "Params.sketch18_height")
pocket17 = body.newObject("PartDesign::Pocket", "Pocket016")
pocket17.Profile = sketch18
pocket17.Type = "ThroughAll"
pocket17.Reversed = True

doc.recompute()
